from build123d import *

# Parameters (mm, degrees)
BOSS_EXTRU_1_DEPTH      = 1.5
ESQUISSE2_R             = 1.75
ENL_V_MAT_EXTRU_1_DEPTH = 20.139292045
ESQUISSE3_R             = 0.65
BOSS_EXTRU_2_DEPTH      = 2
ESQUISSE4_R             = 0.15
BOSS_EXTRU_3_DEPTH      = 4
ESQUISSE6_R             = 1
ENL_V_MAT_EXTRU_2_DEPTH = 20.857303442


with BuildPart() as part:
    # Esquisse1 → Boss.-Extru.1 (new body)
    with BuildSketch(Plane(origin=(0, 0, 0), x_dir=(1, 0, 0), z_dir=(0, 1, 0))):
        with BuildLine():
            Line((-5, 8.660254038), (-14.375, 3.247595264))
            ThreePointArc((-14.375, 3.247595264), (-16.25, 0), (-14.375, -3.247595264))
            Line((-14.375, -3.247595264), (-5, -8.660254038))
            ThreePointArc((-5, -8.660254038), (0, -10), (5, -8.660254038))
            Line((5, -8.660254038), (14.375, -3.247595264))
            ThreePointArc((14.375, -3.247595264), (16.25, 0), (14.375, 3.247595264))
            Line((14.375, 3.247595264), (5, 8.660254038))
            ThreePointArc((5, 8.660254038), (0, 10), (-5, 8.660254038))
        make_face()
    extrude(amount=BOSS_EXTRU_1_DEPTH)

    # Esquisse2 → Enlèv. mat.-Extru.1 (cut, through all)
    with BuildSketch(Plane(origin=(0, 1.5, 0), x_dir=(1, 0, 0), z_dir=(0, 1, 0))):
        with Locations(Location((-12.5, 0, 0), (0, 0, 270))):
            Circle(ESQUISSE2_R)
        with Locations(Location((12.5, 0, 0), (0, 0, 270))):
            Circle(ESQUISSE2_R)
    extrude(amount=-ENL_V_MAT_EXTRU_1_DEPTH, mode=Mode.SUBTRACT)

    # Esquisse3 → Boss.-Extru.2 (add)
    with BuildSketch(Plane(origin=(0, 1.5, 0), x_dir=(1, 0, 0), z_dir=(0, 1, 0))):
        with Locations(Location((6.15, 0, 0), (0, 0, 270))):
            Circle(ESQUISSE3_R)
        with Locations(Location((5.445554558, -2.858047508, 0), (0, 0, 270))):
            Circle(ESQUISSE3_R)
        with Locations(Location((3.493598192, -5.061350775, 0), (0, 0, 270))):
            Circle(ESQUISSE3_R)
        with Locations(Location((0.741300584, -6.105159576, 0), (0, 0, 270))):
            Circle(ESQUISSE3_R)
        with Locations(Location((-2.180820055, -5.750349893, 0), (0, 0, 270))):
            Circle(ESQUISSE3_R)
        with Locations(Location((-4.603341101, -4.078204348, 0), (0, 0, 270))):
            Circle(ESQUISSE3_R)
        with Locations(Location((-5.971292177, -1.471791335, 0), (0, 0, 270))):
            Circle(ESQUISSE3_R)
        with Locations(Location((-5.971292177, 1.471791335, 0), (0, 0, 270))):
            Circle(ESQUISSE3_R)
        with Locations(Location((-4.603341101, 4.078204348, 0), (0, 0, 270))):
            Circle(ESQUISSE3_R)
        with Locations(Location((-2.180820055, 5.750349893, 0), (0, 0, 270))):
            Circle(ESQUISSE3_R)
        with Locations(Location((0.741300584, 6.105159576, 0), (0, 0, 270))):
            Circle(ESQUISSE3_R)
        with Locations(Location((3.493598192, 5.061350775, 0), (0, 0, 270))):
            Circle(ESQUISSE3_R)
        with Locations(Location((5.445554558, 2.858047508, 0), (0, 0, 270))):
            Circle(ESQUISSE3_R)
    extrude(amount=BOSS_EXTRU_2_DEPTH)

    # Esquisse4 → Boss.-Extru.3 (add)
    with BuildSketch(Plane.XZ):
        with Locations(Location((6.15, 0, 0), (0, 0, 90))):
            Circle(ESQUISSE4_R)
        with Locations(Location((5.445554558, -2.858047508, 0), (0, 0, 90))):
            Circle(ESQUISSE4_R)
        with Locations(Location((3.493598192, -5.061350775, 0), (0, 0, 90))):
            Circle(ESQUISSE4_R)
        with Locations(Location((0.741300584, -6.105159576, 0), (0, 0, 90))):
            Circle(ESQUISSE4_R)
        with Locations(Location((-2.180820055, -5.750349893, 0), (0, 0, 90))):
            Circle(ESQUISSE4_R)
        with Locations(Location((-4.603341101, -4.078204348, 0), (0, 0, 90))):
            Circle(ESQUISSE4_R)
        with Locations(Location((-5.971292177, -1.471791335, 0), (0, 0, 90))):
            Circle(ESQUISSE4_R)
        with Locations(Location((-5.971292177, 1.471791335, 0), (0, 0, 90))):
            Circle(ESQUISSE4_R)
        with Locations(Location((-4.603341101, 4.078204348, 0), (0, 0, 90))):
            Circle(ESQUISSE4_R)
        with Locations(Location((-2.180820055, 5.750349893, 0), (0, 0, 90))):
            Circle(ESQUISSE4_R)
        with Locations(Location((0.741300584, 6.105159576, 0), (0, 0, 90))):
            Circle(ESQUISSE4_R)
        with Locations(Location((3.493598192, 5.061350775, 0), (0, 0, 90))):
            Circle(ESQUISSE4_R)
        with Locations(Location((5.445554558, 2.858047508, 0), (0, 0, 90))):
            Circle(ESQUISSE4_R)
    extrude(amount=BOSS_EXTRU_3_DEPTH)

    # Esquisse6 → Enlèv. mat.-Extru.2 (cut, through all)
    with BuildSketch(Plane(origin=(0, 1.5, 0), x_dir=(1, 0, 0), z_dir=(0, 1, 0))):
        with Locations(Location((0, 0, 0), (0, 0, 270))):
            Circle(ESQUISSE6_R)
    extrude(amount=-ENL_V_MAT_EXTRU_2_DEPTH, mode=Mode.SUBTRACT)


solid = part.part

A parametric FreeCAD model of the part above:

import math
import FreeCAD as App
import Part
import Sketcher
from FreeCAD import Vector
Q = App.Units.Quantity

doc = App.newDocument("Part")
body = doc.addObject("PartDesign::Body", "Body")

# Sketch on XZ plane
sketch1 = doc.addObject("Sketcher::SketchObject", "Sketch")
body.addObject(sketch1)
sketch1.AttachmentSupport = (doc.XZ_Plane, [""])
sketch1.MapMode = "FlatFace"
sketch1.addGeometry([
    Part.LineSegment(Vector(-5, -8.660254, 0), Vector(-14.375, -3.247595, 0)),  # 0
    Part.ArcOfCircle(Part.Circle(Vector(-12.5, 0, 0), Vector(0, 0, 1), 3.75), math.radians(120), math.radians(240)),  # 1
    Part.LineSegment(Vector(-14.375, 3.247595, 0), Vector(-5, 8.660254, 0)),  # 2
    Part.ArcOfCircle(Part.Circle(Vector(0, 0, 0), Vector(0, 0, 1), 10), math.radians(60), math.radians(120)),  # 3
    Part.LineSegment(Vector(5, 8.660254, 0), Vector(14.375, 3.247595, 0)),  # 4
    Part.ArcOfCircle(Part.Circle(Vector(12.5, 0, 0), Vector(0, 0, 1), 3.75), math.radians(-60), math.radians(60)),  # 5
    Part.LineSegment(Vector(14.375, -3.247595, 0), Vector(5, -8.660254, 0)),  # 6
    Part.ArcOfCircle(Part.Circle(Vector(0, 0, 0), Vector(0, 0, 1), 10), math.radians(-120), math.radians(-60)),  # 7
], False)
sketch1.addConstraint([
    Sketcher.Constraint("Tangent", 0, 2, 1, 2),
    Sketcher.Constraint("Tangent", 1, 1, 2, 1),
    Sketcher.Constraint("Tangent", 2, 2, 3, 2),
    Sketcher.Constraint("Tangent", 3, 1, 4, 1),
    Sketcher.Constraint("Tangent", 4, 2, 5, 2),
    Sketcher.Constraint("Tangent", 5, 1, 6, 1),
    Sketcher.Constraint("Tangent", 6, 2, 7, 2),
    Sketcher.Constraint("Tangent", 7, 1, 0, 1),
    Sketcher.Constraint("Coincident", 3, 3, -1, 1),
    Sketcher.Constraint("Coincident", 7, 3, -1, 1),
    Sketcher.Constraint("Equal", 1, 5),
    Sketcher.Constraint("Equal", 3, 7),
    Sketcher.Constraint("Symmetric", 1, 3, 5, 3, -1, 1),
    Sketcher.Constraint("PointOnObject", 1, 3, -1),
    Sketcher.Constraint("Radius", 3, Q("10 mm")),
    Sketcher.Constraint("Angle", 0, Q("150 deg")),
    Sketcher.Constraint("Radius", 1, Q("3.75 mm")),
])
pad1 = doc.addObject("PartDesign::Pad", "Pad")
body.addObject(pad1)
pad1.Profile = sketch1
pad1.Length = 1.5
pad1.Reversed = True

# Sketch on XZ plane
sketch2 = doc.addObject("Sketcher::SketchObject", "Sketch001")
body.addObject(sketch2)
sketch2.AttachmentSupport = (doc.XZ_Plane, [""])
sketch2.MapMode = "FlatFace"
sketch2.AttachmentOffset = App.Placement(Vector(0, 0, -1.5), App.Rotation())
sketch2.addGeometry([
    Part.Circle(Vector(-12.5, 0, 0), Vector(0, 0, 1), 1.75),
    Part.Circle(Vector(12.5, 0, 0), Vector(0, 0, 1), 1.75),
], False)
sketch2.addConstraint([
    Sketcher.Constraint("Equal", 0, 1),
    Sketcher.Constraint("Symmetric", 0, 3, 1, 3, -1, 1),
    Sketcher.Constraint("PointOnObject", 0, 3, -1),
    Sketcher.Constraint("Diameter", 0, Q("3.5 mm")),
    Sketcher.Constraint("DistanceX", 0, 3, 1, 3, Q("25 mm")),
])
pocket1 = doc.addObject("PartDesign::Pocket", "Pocket")
body.addObject(pocket1)
pocket1.Profile = sketch2
pocket1.Type = "ThroughAll"
pocket1.Reversed = True

# Sketch on XZ plane
sketch3 = doc.addObject("Sketcher::SketchObject", "Sketch002")
body.addObject(sketch3)
sketch3.AttachmentSupport = (doc.XZ_Plane, [""])
sketch3.MapMode = "FlatFace"
sketch3.AttachmentOffset = App.Placement(Vector(0, 0, -1.5), App.Rotation())
sketch3.addGeometry([
    Part.Circle(Vector(6.15, 0, 0), Vector(0, 0, 1), 0.65),  # 0
    Part.Circle(Vector(5.445555, 2.858048, 0), Vector(0, 0, 1), 0.65),  # 1
    Part.Circle(Vector(3.493598, 5.061351, 0), Vector(0, 0, 1), 0.65),  # 2
    Part.Circle(Vector(0.741301, 6.10516, 0), Vector(0, 0, 1), 0.65),  # 3
    Part.Circle(Vector(-2.18082, 5.75035, 0), Vector(0, 0, 1), 0.65),  # 4
    Part.Circle(Vector(-4.603341, 4.078204, 0), Vector(0, 0, 1), 0.65),  # 5
    Part.Circle(Vector(-5.971292, 1.471791, 0), Vector(0, 0, 1), 0.65),  # 6
    Part.Circle(Vector(-5.971292, -1.471791, 0), Vector(0, 0, 1), 0.65),  # 7
    Part.Circle(Vector(-4.603341, -4.078204, 0), Vector(0, 0, 1), 0.65),  # 8
    Part.Circle(Vector(-2.18082, -5.75035, 0), Vector(0, 0, 1), 0.65),  # 9
    Part.Circle(Vector(0.741301, -6.10516, 0), Vector(0, 0, 1), 0.65),  # 10
    Part.Circle(Vector(3.493598, -5.061351, 0), Vector(0, 0, 1), 0.65),  # 11
    Part.Circle(Vector(5.445555, -2.858048, 0), Vector(0, 0, 1), 0.65),  # 12
], False)
sketch3.addConstraint([
    Sketcher.Constraint("Equal", 0, 1),
    Sketcher.Constraint("Equal", 1, 2),
    Sketcher.Constraint("Equal", 2, 3),
    Sketcher.Constraint("Equal", 3, 4),
    Sketcher.Constraint("Equal", 4, 5),
    Sketcher.Constraint("Equal", 5, 6),
    Sketcher.Constraint("Equal", 6, 7),
    Sketcher.Constraint("Equal", 7, 8),
    Sketcher.Constraint("Equal", 8, 9),
    Sketcher.Constraint("Equal", 9, 10),
    Sketcher.Constraint("Equal", 10, 11),
    Sketcher.Constraint("Equal", 11, 12),
    Sketcher.Constraint("Symmetric", 6, 3, 7, 3, -1),
    Sketcher.Constraint("Symmetric", 5, 3, 8, 3, -1),
    Sketcher.Constraint("Symmetric", 4, 3, 9, 3, -1),
    Sketcher.Constraint("Symmetric", 3, 3, 10, 3, -1),
    Sketcher.Constraint("Symmetric", 2, 3, 11, 3, -1),
    Sketcher.Constraint("Symmetric", 1, 3, 12, 3, -1),
    Sketcher.Constraint("PointOnObject", 0, 3, -1),
    Sketcher.Constraint("Diameter", 0, Q("1.3 mm")),
    Sketcher.Constraint("DistanceX", -1, 1, 0, 3, Q("6.15 mm")),
    Sketcher.Constraint("DistanceY", 2, 3, 4, 3, Q("0.688999 mm")),
    Sketcher.Constraint("DistanceX", -1, 1, 2, 3, Q("3.493598 mm")),
    Sketcher.Constraint("DistanceX", -1, 1, 3, 3, Q("0.741301 mm")),
    Sketcher.Constraint("DistanceY", 11, 3, 1, 3, Q("7.919398 mm")),
    Sketcher.Constraint("DistanceY", -1, 1, 2, 3, Q("5.061351 mm")),
    Sketcher.Constraint("DistanceY", -1, 1, 3, 3, Q("6.10516 mm")),
    Sketcher.Constraint("DistanceX", 4, 3, -1, 1, Q("2.18082 mm")),
    Sketcher.Constraint("DistanceX", 5, 3, -1, 1, Q("4.603341 mm")),
    Sketcher.Constraint("DistanceY", -1, 1, 6, 3, Q("1.471791 mm")),
    Sketcher.Constraint("DistanceX", 6, 3, 5, 3, Q("1.367951 mm")),
    Sketcher.Constraint("DistanceY", 8, 3, 5, 3, Q("8.156409 mm")),
    Sketcher.Constraint("DistanceX", -1, 1, 1, 3, Q("5.445555 mm")),
])
pad2 = doc.addObject("PartDesign::Pad", "Pad001")
body.addObject(pad2)
pad2.Profile = sketch3
pad2.Length = 2
pad2.Reversed = True

# Sketch on XZ plane
sketch4 = doc.addObject("Sketcher::SketchObject", "Sketch003")
body.addObject(sketch4)
sketch4.AttachmentSupport = (doc.XZ_Plane, [""])
sketch4.MapMode = "FlatFace"
sketch4.addGeometry([
    Part.Circle(Vector(6.15, 0, 0), Vector(0, 0, 1), 0.15),  # 0
    Part.Circle(Vector(5.445555, -2.858048, 0), Vector(0, 0, 1), 0.15),  # 1
    Part.Circle(Vector(3.493598, -5.061351, 0), Vector(0, 0, 1), 0.15),  # 2
    Part.Circle(Vector(0.741301, -6.10516, 0), Vector(0, 0, 1), 0.15),  # 3
    Part.Circle(Vector(-2.18082, -5.75035, 0), Vector(0, 0, 1), 0.15),  # 4
    Part.Circle(Vector(-4.603341, -4.078204, 0), Vector(0, 0, 1), 0.15),  # 5
    Part.Circle(Vector(-5.971292, -1.471791, 0), Vector(0, 0, 1), 0.15),  # 6
    Part.Circle(Vector(-5.971292, 1.471791, 0), Vector(0, 0, 1), 0.15),  # 7
    Part.Circle(Vector(-4.603341, 4.078204, 0), Vector(0, 0, 1), 0.15),  # 8
    Part.Circle(Vector(-2.18082, 5.75035, 0), Vector(0, 0, 1), 0.15),  # 9
    Part.Circle(Vector(0.741301, 6.10516, 0), Vector(0, 0, 1), 0.15),  # 10
    Part.Circle(Vector(3.493598, 5.061351, 0), Vector(0, 0, 1), 0.15),  # 11
    Part.Circle(Vector(5.445555, 2.858048, 0), Vector(0, 0, 1), 0.15),  # 12
], False)
sketch4.addConstraint([
    Sketcher.Constraint("Equal", 0, 1),
    Sketcher.Constraint("Equal", 1, 2),
    Sketcher.Constraint("Equal", 2, 3),
    Sketcher.Constraint("Equal", 3, 4),
    Sketcher.Constraint("Equal", 4, 5),
    Sketcher.Constraint("Equal", 5, 6),
    Sketcher.Constraint("Equal", 6, 7),
    Sketcher.Constraint("Equal", 7, 8),
    Sketcher.Constraint("Equal", 8, 9),
    Sketcher.Constraint("Equal", 9, 10),
    Sketcher.Constraint("Equal", 10, 11),
    Sketcher.Constraint("Equal", 11, 12),
    Sketcher.Constraint("Symmetric", 6, 3, 7, 3, -1),
    Sketcher.Constraint("Symmetric", 5, 3, 8, 3, -1),
    Sketcher.Constraint("Symmetric", 4, 3, 9, 3, -1),
    Sketcher.Constraint("Symmetric", 3, 3, 10, 3, -1),
    Sketcher.Constraint("Symmetric", 2, 3, 11, 3, -1),
    Sketcher.Constraint("Symmetric", 1, 3, 12, 3, -1),
    Sketcher.Constraint("PointOnObject", 0, 3, -1),
    Sketcher.Constraint("Diameter", 0, Q("0.3 mm")),
    Sketcher.Constraint("DistanceX", -1, 1, 0, 3, Q("6.15 mm")),
    Sketcher.Constraint("DistanceY", 4, 3, 2, 3, Q("0.688999 mm")),
    Sketcher.Constraint("DistanceX", -1, 1, 2, 3, Q("3.493598 mm")),
    Sketcher.Constraint("DistanceX", -1, 1, 3, 3, Q("0.741301 mm")),
    Sketcher.Constraint("DistanceY", 1, 3, 11, 3, Q("7.919398 mm")),
    Sketcher.Constraint("DistanceY", 2, 3, -1, 1, Q("5.061351 mm")),
    Sketcher.Constraint("DistanceY", 3, 3, -1, 1, Q("6.10516 mm")),
    Sketcher.Constraint("DistanceX", 4, 3, -1, 1, Q("2.18082 mm")),
    Sketcher.Constraint("DistanceX", 5, 3, -1, 1, Q("4.603341 mm")),
    Sketcher.Constraint("DistanceY", 6, 3, -1, 1, Q("1.471791 mm")),
    Sketcher.Constraint("DistanceX", 6, 3, 5, 3, Q("1.367951 mm")),
    Sketcher.Constraint("DistanceY", 5, 3, 8, 3, Q("8.156409 mm")),
    Sketcher.Constraint("DistanceX", -1, 1, 1, 3, Q("5.445555 mm")),
])
pad3 = doc.addObject("PartDesign::Pad", "Pad002")
body.addObject(pad3)
pad3.Profile = sketch4
pad3.Length = 4

# Sketch on XZ plane
sketch5 = doc.addObject("Sketcher::SketchObject", "Sketch004")
body.addObject(sketch5)
sketch5.AttachmentSupport = (doc.XZ_Plane, [""])
sketch5.MapMode = "FlatFace"
sketch5.AttachmentOffset = App.Placement(Vector(0, 0, -1.5), App.Rotation())
sketch5.addGeometry(Part.Circle(Vector(0, 0, 0), Vector(0, 0, 1), 1), False)
sketch5.addConstraint([
    Sketcher.Constraint("Coincident", 0, 3, -1, 1),
    Sketcher.Constraint("Diameter", 0, Q("2 mm")),
])
pocket2 = doc.addObject("PartDesign::Pocket", "Pocket001")
body.addObject(pocket2)
pocket2.Profile = sketch5
pocket2.Type = "ThroughAll"
pocket2.Reversed = True

doc.recompute()
